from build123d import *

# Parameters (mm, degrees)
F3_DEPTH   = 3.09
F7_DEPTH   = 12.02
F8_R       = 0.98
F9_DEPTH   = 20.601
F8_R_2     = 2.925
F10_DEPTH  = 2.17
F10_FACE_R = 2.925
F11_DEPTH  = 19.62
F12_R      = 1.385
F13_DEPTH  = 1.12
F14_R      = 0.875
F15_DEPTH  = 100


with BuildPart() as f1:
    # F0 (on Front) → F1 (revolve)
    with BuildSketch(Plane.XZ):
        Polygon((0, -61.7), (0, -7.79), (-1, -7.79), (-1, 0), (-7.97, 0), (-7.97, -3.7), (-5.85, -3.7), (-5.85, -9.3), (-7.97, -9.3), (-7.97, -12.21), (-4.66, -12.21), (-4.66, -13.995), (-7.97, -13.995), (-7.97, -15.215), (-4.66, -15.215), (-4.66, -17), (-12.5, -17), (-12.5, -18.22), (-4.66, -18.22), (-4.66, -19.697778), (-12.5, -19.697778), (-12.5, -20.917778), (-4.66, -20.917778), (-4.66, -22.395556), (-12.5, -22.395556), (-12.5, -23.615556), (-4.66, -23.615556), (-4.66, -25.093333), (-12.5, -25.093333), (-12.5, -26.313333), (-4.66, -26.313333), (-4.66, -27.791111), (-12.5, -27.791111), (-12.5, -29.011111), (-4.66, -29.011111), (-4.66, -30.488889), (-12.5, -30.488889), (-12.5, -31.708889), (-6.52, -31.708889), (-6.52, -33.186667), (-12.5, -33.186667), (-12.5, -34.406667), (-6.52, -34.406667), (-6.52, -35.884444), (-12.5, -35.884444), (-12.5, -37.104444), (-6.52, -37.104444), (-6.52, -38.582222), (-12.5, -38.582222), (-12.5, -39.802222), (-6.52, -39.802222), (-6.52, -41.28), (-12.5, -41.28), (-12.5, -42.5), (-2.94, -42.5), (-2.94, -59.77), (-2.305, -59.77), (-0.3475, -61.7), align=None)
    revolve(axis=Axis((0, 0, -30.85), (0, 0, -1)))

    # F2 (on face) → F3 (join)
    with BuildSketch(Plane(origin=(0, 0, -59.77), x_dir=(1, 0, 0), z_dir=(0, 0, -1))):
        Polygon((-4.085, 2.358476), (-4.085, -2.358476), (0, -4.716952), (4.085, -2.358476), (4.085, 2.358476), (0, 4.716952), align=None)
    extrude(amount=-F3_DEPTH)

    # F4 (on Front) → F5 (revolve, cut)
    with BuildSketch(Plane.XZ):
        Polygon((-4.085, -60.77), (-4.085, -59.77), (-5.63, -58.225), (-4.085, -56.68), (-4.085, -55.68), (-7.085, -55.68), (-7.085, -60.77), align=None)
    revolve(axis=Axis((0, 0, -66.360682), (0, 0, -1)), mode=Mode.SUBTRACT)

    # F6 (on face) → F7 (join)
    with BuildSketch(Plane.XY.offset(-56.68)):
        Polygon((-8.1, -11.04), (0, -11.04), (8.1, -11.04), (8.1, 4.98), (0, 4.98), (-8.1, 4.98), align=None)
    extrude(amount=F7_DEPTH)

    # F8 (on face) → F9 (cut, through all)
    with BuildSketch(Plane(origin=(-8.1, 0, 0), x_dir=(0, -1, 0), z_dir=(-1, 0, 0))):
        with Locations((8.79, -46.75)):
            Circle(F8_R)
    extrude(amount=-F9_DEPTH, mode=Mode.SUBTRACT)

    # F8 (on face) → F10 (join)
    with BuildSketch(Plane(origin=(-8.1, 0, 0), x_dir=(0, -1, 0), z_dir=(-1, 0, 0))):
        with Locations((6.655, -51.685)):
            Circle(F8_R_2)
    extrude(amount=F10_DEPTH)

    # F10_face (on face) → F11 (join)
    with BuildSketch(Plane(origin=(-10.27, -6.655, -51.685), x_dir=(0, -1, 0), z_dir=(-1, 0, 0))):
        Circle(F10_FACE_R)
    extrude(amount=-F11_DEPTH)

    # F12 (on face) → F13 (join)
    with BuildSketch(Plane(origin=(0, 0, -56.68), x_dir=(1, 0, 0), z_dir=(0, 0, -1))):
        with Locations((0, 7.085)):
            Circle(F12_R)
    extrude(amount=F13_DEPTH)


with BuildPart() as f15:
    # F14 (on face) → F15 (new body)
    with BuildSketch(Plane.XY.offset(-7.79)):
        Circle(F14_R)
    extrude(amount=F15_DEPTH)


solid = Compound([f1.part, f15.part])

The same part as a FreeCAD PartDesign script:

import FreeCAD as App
import Part
import Sketcher

V = App.Vector
Q = App.Units.Quantity

doc = App.newDocument("Part")
body = doc.addObject("PartDesign::Body", "Body")

sketch1 = body.newObject("Sketcher::SketchObject", "Sketch")
sketch1.AttachmentSupport = (doc.getObject("XZ_Plane"), [""])
sketch1.MapMode = "FlatFace"
sketch1.addGeometry(Part.LineSegment(V(0, -61.7, 0), V(0, -7.79, 0)), False)
sketch1.addGeometry(Part.LineSegment(V(0, -7.79, 0), V(-1, -7.79, 0)), False)
sketch1.addGeometry(Part.LineSegment(V(-1, -7.79, 0), V(-1, 0, 0)), False)
sketch1.addGeometry(Part.LineSegment(V(-1, 0, 0), V(-7.97, 0, 0)), False)
sketch1.addGeometry(Part.LineSegment(V(-7.97, 0, 0), V(-7.97, -3.7, 0)), False)
sketch1.addGeometry(Part.LineSegment(V(-7.97, -3.7, 0), V(-5.85, -3.7, 0)), False)
sketch1.addGeometry(Part.LineSegment(V(-5.85, -3.7, 0), V(-5.85, -9.3, 0)), False)
sketch1.addGeometry(Part.LineSegment(V(-5.85, -9.3, 0), V(-7.97, -9.3, 0)), False)
sketch1.addGeometry(Part.LineSegment(V(-7.97, -9.3, 0), V(-7.97, -12.21, 0)), False)
sketch1.addGeometry(Part.LineSegment(V(-7.97, -12.21, 0), V(-4.66, -12.21, 0)), False)
sketch1.addGeometry(Part.LineSegment(V(-4.66, -12.21, 0), V(-4.66, -13.99, 0)), False)
sketch1.addGeometry(Part.LineSegment(V(-4.66, -13.99, 0), V(-7.97, -13.99, 0)), False)
sketch1.addGeometry(Part.LineSegment(V(-7.97, -13.99, 0), V(-7.97, -15.21, 0)), False)
sketch1.addGeometry(Part.LineSegment(V(-7.97, -15.21, 0), V(-4.66, -15.21, 0)), False)
sketch1.addGeometry(Part.LineSegment(V(-4.66, -15.21, 0), V(-4.66, -17, 0)), False)
sketch1.addGeometry(Part.LineSegment(V(-4.66, -17, 0), V(-12.5, -17, 0)), False)
sketch1.addGeometry(Part.LineSegment(V(-12.5, -17, 0), V(-12.5, -18.22, 0)), False)
sketch1.addGeometry(Part.LineSegment(V(-12.5, -18.22, 0), V(-4.66, -18.22, 0)), False)
sketch1.addGeometry(Part.LineSegment(V(-4.66, -18.22, 0), V(-4.66, -19.7, 0)), False)
sketch1.addGeometry(Part.LineSegment(V(-4.66, -19.7, 0), V(-12.5, -19.7, 0)), False)
sketch1.addGeometry(Part.LineSegment(V(-12.5, -19.7, 0), V(-12.5, -20.92, 0)), False)
sketch1.addGeometry(Part.LineSegment(V(-12.5, -20.92, 0), V(-4.66, -20.92, 0)), False)
sketch1.addGeometry(Part.LineSegment(V(-4.66, -20.92, 0), V(-4.66, -22.4, 0)), False)
sketch1.addGeometry(Part.LineSegment(V(-4.66, -22.4, 0), V(-12.5, -22.4, 0)), False)
sketch1.addGeometry(Part.LineSegment(V(-12.5, -22.4, 0), V(-12.5, -23.62, 0)), False)
sketch1.addGeometry(Part.LineSegment(V(-12.5, -23.62, 0), V(-4.66, -23.62, 0)), False)
sketch1.addGeometry(Part.LineSegment(V(-4.66, -23.62, 0), V(-4.66, -25.09, 0)), False)
sketch1.addGeometry(Part.LineSegment(V(-4.66, -25.09, 0), V(-12.5, -25.09, 0)), False)
sketch1.addGeometry(Part.LineSegment(V(-12.5, -25.09, 0), V(-12.5, -26.31, 0)), False)
sketch1.addGeometry(Part.LineSegment(V(-12.5, -26.31, 0), V(-4.66, -26.31, 0)), False)
sketch1.addGeometry(Part.LineSegment(V(-4.66, -26.31, 0), V(-4.66, -27.79, 0)), False)
sketch1.addGeometry(Part.LineSegment(V(-4.66, -27.79, 0), V(-12.5, -27.79, 0)), False)
sketch1.addGeometry(Part.LineSegment(V(-12.5, -27.79, 0), V(-12.5, -29.01, 0)), False)
sketch1.addGeometry(Part.LineSegment(V(-12.5, -29.01, 0), V(-4.66, -29.01, 0)), False)
sketch1.addGeometry(Part.LineSegment(V(-4.66, -29.01, 0), V(-4.66, -30.49, 0)), False)
sketch1.addGeometry(Part.LineSegment(V(-4.66, -30.49, 0), V(-12.5, -30.49, 0)), False)
sketch1.addGeometry(Part.LineSegment(V(-12.5, -30.49, 0), V(-12.5, -31.71, 0)), False)
sketch1.addGeometry(Part.LineSegment(V(-12.5, -31.71, 0), V(-6.52, -31.71, 0)), False)
sketch1.addGeometry(Part.LineSegment(V(-6.52, -31.71, 0), V(-6.52, -33.19, 0)), False)
sketch1.addGeometry(Part.LineSegment(V(-6.52, -33.19, 0), V(-12.5, -33.19, 0)), False)
sketch1.addGeometry(Part.LineSegment(V(-12.5, -33.19, 0), V(-12.5, -34.41, 0)), False)
sketch1.addGeometry(Part.LineSegment(V(-12.5, -34.41, 0), V(-6.52, -34.41, 0)), False)
sketch1.addGeometry(Part.LineSegment(V(-6.52, -34.41, 0), V(-6.52, -35.88, 0)), False)
sketch1.addGeometry(Part.LineSegment(V(-6.52, -35.88, 0), V(-12.5, -35.88, 0)), False)
sketch1.addGeometry(Part.LineSegment(V(-12.5, -35.88, 0), V(-12.5, -37.1, 0)), False)
sketch1.addGeometry(Part.LineSegment(V(-12.5, -37.1, 0), V(-6.52, -37.1, 0)), False)
sketch1.addGeometry(Part.LineSegment(V(-6.52, -37.1, 0), V(-6.52, -38.58, 0)), False)
sketch1.addGeometry(Part.LineSegment(V(-6.52, -38.58, 0), V(-12.5, -38.58, 0)), False)
sketch1.addGeometry(Part.LineSegment(V(-12.5, -38.58, 0), V(-12.5, -39.8, 0)), False)
sketch1.addGeometry(Part.LineSegment(V(-12.5, -39.8, 0), V(-6.52, -39.8, 0)), False)
sketch1.addGeometry(Part.LineSegment(V(-6.52, -39.8, 0), V(-6.52, -41.28, 0)), False)
sketch1.addGeometry(Part.LineSegment(V(-6.52, -41.28, 0), V(-12.5, -41.28, 0)), False)
sketch1.addGeometry(Part.LineSegment(V(-12.5, -41.28, 0), V(-12.5, -42.5, 0)), False)
sketch1.addGeometry(Part.LineSegment(V(-12.5, -42.5, 0), V(-2.94, -42.5, 0)), False)
sketch1.addGeometry(Part.LineSegment(V(-2.94, -42.5, 0), V(-2.94, -59.77, 0)), False)
sketch1.addGeometry(Part.LineSegment(V(-2.94, -59.77, 0), V(-2.31, -59.77, 0)), False)
sketch1.addGeometry(Part.LineSegment(V(-2.31, -59.77, 0), V(-0.35, -61.7, 0)), False)
sketch1.addGeometry(Part.LineSegment(V(-0.35, -61.7, 0), V(0, -61.7, 0)), False)
sketch1.addConstraint(Sketcher.Constraint("Coincident", 0, 2, 1, 1))
sketch1.addConstraint(Sketcher.Constraint("Coincident", 1, 2, 2, 1))
sketch1.addConstraint(Sketcher.Constraint("Coincident", 2, 2, 3, 1))
sketch1.addConstraint(Sketcher.Constraint("Coincident", 3, 2, 4, 1))
sketch1.addConstraint(Sketcher.Constraint("Coincident", 4, 2, 5, 1))
sketch1.addConstraint(Sketcher.Constraint("Coincident", 5, 2, 6, 1))
sketch1.addConstraint(Sketcher.Constraint("Coincident", 6, 2, 7, 1))
sketch1.addConstraint(Sketcher.Constraint("Coincident", 7, 2, 8, 1))
sketch1.addConstraint(Sketcher.Constraint("Coincident", 8, 2, 9, 1))
sketch1.addConstraint(Sketcher.Constraint("Coincident", 9, 2, 10, 1))
sketch1.addConstraint(Sketcher.Constraint("Coincident", 10, 2, 11, 1))
sketch1.addConstraint(Sketcher.Constraint("Coincident", 11, 2, 12, 1))
sketch1.addConstraint(Sketcher.Constraint("Coincident", 12, 2, 13, 1))
sketch1.addConstraint(Sketcher.Constraint("Coincident", 13, 2, 14, 1))
sketch1.addConstraint(Sketcher.Constraint("Coincident", 14, 2, 15, 1))
sketch1.addConstraint(Sketcher.Constraint("Coincident", 15, 2, 16, 1))
sketch1.addConstraint(Sketcher.Constraint("Coincident", 16, 2, 17, 1))
sketch1.addConstraint(Sketcher.Constraint("Coincident", 17, 2, 18, 1))
sketch1.addConstraint(Sketcher.Constraint("Coincident", 18, 2, 19, 1))
sketch1.addConstraint(Sketcher.Constraint("Coincident", 19, 2, 20, 1))
sketch1.addConstraint(Sketcher.Constraint("Coincident", 20, 2, 21, 1))
sketch1.addConstraint(Sketcher.Constraint("Coincident", 21, 2, 22, 1))
sketch1.addConstraint(Sketcher.Constraint("Coincident", 22, 2, 23, 1))
sketch1.addConstraint(Sketcher.Constraint("Coincident", 23, 2, 24, 1))
sketch1.addConstraint(Sketcher.Constraint("Coincident", 24, 2, 25, 1))
sketch1.addConstraint(Sketcher.Constraint("Coincident", 25, 2, 26, 1))
sketch1.addConstraint(Sketcher.Constraint("Coincident", 26, 2, 27, 1))
sketch1.addConstraint(Sketcher.Constraint("Coincident", 27, 2, 28, 1))
sketch1.addConstraint(Sketcher.Constraint("Coincident", 28, 2, 29, 1))
sketch1.addConstraint(Sketcher.Constraint("Coincident", 29, 2, 30, 1))
sketch1.addConstraint(Sketcher.Constraint("Coincident", 30, 2, 31, 1))
sketch1.addConstraint(Sketcher.Constraint("Coincident", 31, 2, 32, 1))
sketch1.addConstraint(Sketcher.Constraint("Coincident", 32, 2, 33, 1))
sketch1.addConstraint(Sketcher.Constraint("Coincident", 33, 2, 34, 1))
sketch1.addConstraint(Sketcher.Constraint("Coincident", 34, 2, 35, 1))
sketch1.addConstraint(Sketcher.Constraint("Coincident", 35, 2, 36, 1))
sketch1.addConstraint(Sketcher.Constraint("Coincident", 36, 2, 37, 1))
sketch1.addConstraint(Sketcher.Constraint("Coincident", 37, 2, 38, 1))
sketch1.addConstraint(Sketcher.Constraint("Coincident", 38, 2, 39, 1))
sketch1.addConstraint(Sketcher.Constraint("Coincident", 39, 2, 40, 1))
sketch1.addConstraint(Sketcher.Constraint("Coincident", 40, 2, 41, 1))
sketch1.addConstraint(Sketcher.Constraint("Coincident", 41, 2, 42, 1))
sketch1.addConstraint(Sketcher.Constraint("Coincident", 42, 2, 43, 1))
sketch1.addConstraint(Sketcher.Constraint("Coincident", 43, 2, 44, 1))
sketch1.addConstraint(Sketcher.Constraint("Coincident", 44, 2, 45, 1))
sketch1.addConstraint(Sketcher.Constraint("Coincident", 45, 2, 46, 1))
sketch1.addConstraint(Sketcher.Constraint("Coincident", 46, 2, 47, 1))
sketch1.addConstraint(Sketcher.Constraint("Coincident", 47, 2, 48, 1))
sketch1.addConstraint(Sketcher.Constraint("Coincident", 48, 2, 49, 1))
sketch1.addConstraint(Sketcher.Constraint("Coincident", 49, 2, 50, 1))
sketch1.addConstraint(Sketcher.Constraint("Coincident", 50, 2, 51, 1))
sketch1.addConstraint(Sketcher.Constraint("Coincident", 51, 2, 52, 1))
sketch1.addConstraint(Sketcher.Constraint("Coincident", 52, 2, 53, 1))
sketch1.addConstraint(Sketcher.Constraint("Coincident", 53, 2, 54, 1))
sketch1.addConstraint(Sketcher.Constraint("Coincident", 54, 2, 55, 1))
sketch1.addConstraint(Sketcher.Constraint("Coincident", 55, 2, 56, 1))
sketch1.addConstraint(Sketcher.Constraint("Coincident", 56, 2, 57, 1))
sketch1.addConstraint(Sketcher.Constraint("Coincident", 57, 2, 0, 1))
sketch1.addConstraint(Sketcher.Constraint("Vertical", 0))
sketch1.addConstraint(Sketcher.Constraint("Horizontal", 1))
sketch1.addConstraint(Sketcher.Constraint("Vertical", 2))
sketch1.addConstraint(Sketcher.Constraint("Horizontal", 3))
sketch1.addConstraint(Sketcher.Constraint("Vertical", 4))
sketch1.addConstraint(Sketcher.Constraint("Horizontal", 5))
sketch1.addConstraint(Sketcher.Constraint("Vertical", 6))
sketch1.addConstraint(Sketcher.Constraint("Horizontal", 7))
sketch1.addConstraint(Sketcher.Constraint("Vertical", 8))
sketch1.addConstraint(Sketcher.Constraint("Horizontal", 9))
sketch1.addConstraint(Sketcher.Constraint("Vertical", 10))
sketch1.addConstraint(Sketcher.Constraint("Horizontal", 11))
sketch1.addConstraint(Sketcher.Constraint("Vertical", 12))
sketch1.addConstraint(Sketcher.Constraint("Horizontal", 13))
sketch1.addConstraint(Sketcher.Constraint("Vertical", 14))
sketch1.addConstraint(Sketcher.Constraint("Horizontal", 15))
sketch1.addConstraint(Sketcher.Constraint("Vertical", 16))
sketch1.addConstraint(Sketcher.Constraint("Horizontal", 17))
sketch1.addConstraint(Sketcher.Constraint("Vertical", 18))
sketch1.addConstraint(Sketcher.Constraint("Horizontal", 19))
sketch1.addConstraint(Sketcher.Constraint("Vertical", 20))
sketch1.addConstraint(Sketcher.Constraint("Horizontal", 21))
sketch1.addConstraint(Sketcher.Constraint("Vertical", 22))
sketch1.addConstraint(Sketcher.Constraint("Horizontal", 23))
sketch1.addConstraint(Sketcher.Constraint("Vertical", 24))
sketch1.addConstraint(Sketcher.Constraint("Horizontal", 25))
sketch1.addConstraint(Sketcher.Constraint("Vertical", 26))
sketch1.addConstraint(Sketcher.Constraint("Horizontal", 27))
sketch1.addConstraint(Sketcher.Constraint("Vertical", 28))
sketch1.addConstraint(Sketcher.Constraint("Horizontal", 29))
sketch1.addConstraint(Sketcher.Constraint("Vertical", 30))
sketch1.addConstraint(Sketcher.Constraint("Horizontal", 31))
sketch1.addConstraint(Sketcher.Constraint("Vertical", 32))
sketch1.addConstraint(Sketcher.Constraint("Horizontal", 33))
sketch1.addConstraint(Sketcher.Constraint("Vertical", 34))
sketch1.addConstraint(Sketcher.Constraint("Horizontal", 35))
sketch1.addConstraint(Sketcher.Constraint("Vertical", 36))
sketch1.addConstraint(Sketcher.Constraint("Horizontal", 37))
sketch1.addConstraint(Sketcher.Constraint("Vertical", 38))
sketch1.addConstraint(Sketcher.Constraint("Horizontal", 39))
sketch1.addConstraint(Sketcher.Constraint("Vertical", 40))
sketch1.addConstraint(Sketcher.Constraint("Horizontal", 41))
sketch1.addConstraint(Sketcher.Constraint("Vertical", 42))
sketch1.addConstraint(Sketcher.Constraint("Horizontal", 43))
sketch1.addConstraint(Sketcher.Constraint("Vertical", 44))
sketch1.addConstraint(Sketcher.Constraint("Horizontal", 45))
sketch1.addConstraint(Sketcher.Constraint("Vertical", 46))
sketch1.addConstraint(Sketcher.Constraint("Horizontal", 47))
sketch1.addConstraint(Sketcher.Constraint("Vertical", 48))
sketch1.addConstraint(Sketcher.Constraint("Horizontal", 49))
sketch1.addConstraint(Sketcher.Constraint("Vertical", 50))
sketch1.addConstraint(Sketcher.Constraint("Horizontal", 51))
sketch1.addConstraint(Sketcher.Constraint("Vertical", 52))
sketch1.addConstraint(Sketcher.Constraint("Horizontal", 53))
sketch1.addConstraint(Sketcher.Constraint("Vertical", 54))
sketch1.addConstraint(Sketcher.Constraint("Horizontal", 55))
sketch1.addConstraint(Sketcher.Constraint("Horizontal", 57))
sketch1.addConstraint(Sketcher.Constraint("PointOnObject", 0, 2, -2))
sketch1.addConstraint(Sketcher.Constraint("PointOnObject", 2, 2, -1))
sketch1.addConstraint(Sketcher.Constraint("Vertical", 4, 2, 7, 2))
sketch1.addConstraint(Sketcher.Constraint("Vertical", 8, 2, 11, 2))
sketch1.addConstraint(Sketcher.Constraint("Vertical", 10, 2, 13, 2))
sketch1.addConstraint(Sketcher.Constraint("Vertical", 14, 2, 17, 2))
sketch1.addConstraint(Sketcher.Constraint("Vertical", 16, 2, 19, 2))
sketch1.addConstraint(Sketcher.Constraint("Vertical", 18, 2, 21, 2))
sketch1.addConstraint(Sketcher.Constraint("Vertical", 20, 2, 23, 2))
sketch1.addConstraint(Sketcher.Constraint("Vertical", 22, 2, 25, 2))
sketch1.addConstraint(Sketcher.Constraint("Vertical", 24, 2, 27, 2))
sketch1.addConstraint(Sketcher.Constraint("Vertical", 26, 2, 29, 2))
sketch1.addConstraint(Sketcher.Constraint("Vertical", 28, 2, 31, 2))
sketch1.addConstraint(Sketcher.Constraint("Vertical", 30, 2, 33, 2))
sketch1.addConstraint(Sketcher.Constraint("Vertical", 32, 2, 35, 2))
sketch1.addConstraint(Sketcher.Constraint("Vertical", 36, 2, 39, 2))
sketch1.addConstraint(Sketcher.Constraint("Vertical", 38, 2, 41, 2))
sketch1.addConstraint(Sketcher.Constraint("Vertical", 40, 2, 43, 2))
sketch1.addConstraint(Sketcher.Constraint("Vertical", 42, 2, 45, 2))
sketch1.addConstraint(Sketcher.Constraint("Vertical", 44, 2, 47, 2))
sketch1.addConstraint(Sketcher.Constraint("Vertical", 46, 2, 49, 2))
sketch1.addConstraint(Sketcher.Constraint("Vertical", 48, 2, 51, 2))
sketch1.addConstraint(Sketcher.Constraint("Equal", 10, 14))
sketch1.addConstraint(Sketcher.Constraint("Equal", 12, 16))
sketch1.addConstraint(Sketcher.Constraint("Equal", 16, 20))
sketch1.addConstraint(Sketcher.Constraint("Equal", 18, 22))
sketch1.addConstraint(Sketcher.Constraint("Equal", 20, 24))
sketch1.addConstraint(Sketcher.Constraint("Equal", 22, 26))
sketch1.addConstraint(Sketcher.Constraint("Equal", 24, 28))
sketch1.addConstraint(Sketcher.Constraint("Equal", 26, 30))
sketch1.addConstraint(Sketcher.Constraint("Equal", 28, 32))
sketch1.addConstraint(Sketcher.Constraint("Equal", 30, 34))
sketch1.addConstraint(Sketcher.Constraint("Equal", 32, 36))
sketch1.addConstraint(Sketcher.Constraint("Equal", 34, 38))
sketch1.addConstraint(Sketcher.Constraint("Equal", 36, 40))
sketch1.addConstraint(Sketcher.Constraint("Equal", 38, 42))
sketch1.addConstraint(Sketcher.Constraint("Equal", 40, 44))
sketch1.addConstraint(Sketcher.Constraint("Equal", 42, 46))
sketch1.addConstraint(Sketcher.Constraint("Equal", 44, 48))
sketch1.addConstraint(Sketcher.Constraint("Equal", 46, 50))
sketch1.addConstraint(Sketcher.Constraint("Equal", 48, 52))
sketch1.addConstraint(Sketcher.Constraint("DistanceX", 1, 2, 1, 1, Q("1 mm")))
sketch1.addConstraint(Sketcher.Constraint("DistanceY", 4, 2, 4, 1, Q("3.7 mm")))
sketch1.addConstraint(Sketcher.Constraint("DistanceY", 6, 2, 6, 1, Q("5.6 mm")))
sketch1.addConstraint(Sketcher.Constraint("DistanceY", 14, 2, -1, 1, Q("17 mm")))
sketch1.addConstraint(Sketcher.Constraint("DistanceX", 3, 2, 3, 1, Q("6.97 mm")))
sketch1.addConstraint(Sketcher.Constraint("DistanceX", 5, 1, 5, 2, Q("2.12 mm")))
sketch1.addConstraint(Sketcher.Constraint("DistanceX", 9, 1, 9, 2, Q("3.31 mm")))
sketch1.addConstraint(Sketcher.Constraint("DistanceX", 15, 2, 15, 1, Q("7.84 mm")))
sketch1.addConstraint(Sketcher.Constraint("DistanceX", 37, 1, 37, 2, Q("5.98 mm")))
sketch1.addConstraint(Sketcher.Constraint("DistanceX", 53, 1, 53, 2, Q("9.56 mm")))
sketch1.addConstraint(Sketcher.Constraint("DistanceY", 0, 1, 0, 2, Q("53.91 mm")))
sketch1.addConstraint(Sketcher.Constraint("DistanceY", 2, 1, 2, 2, Q("7.79 mm")))
sketch1.addConstraint(Sketcher.Constraint("DistanceY", 8, 2, 8, 1, Q("2.91 mm")))
sketch1.addConstraint(Sketcher.Constraint("DistanceY", 12, 2, 12, 1, Q("1.22 mm")))
sketch1.addConstraint(Sketcher.Constraint("DistanceY", 54, 2, 54, 1, Q("17.27 mm")))
sketch1.addConstraint(Sketcher.Constraint("DistanceY", 52, 2, -1, 1, Q("42.5 mm")))
sketch1.addConstraint(Sketcher.Constraint("DistanceX", 55, 1, 55, 2, Q("0.635 mm")))
sketch1.addConstraint(Sketcher.Constraint("DistanceX", 57, 1, 57, 2, Q("0.3475 mm")))
revolution = body.newObject("PartDesign::Revolution", "Revolution")
revolution.Profile = sketch1
revolution.ReferenceAxis = (sketch1, ["V_Axis"])
revolution.Angle = 360

sketch2 = body.newObject("Sketcher::SketchObject", "Sketch001")
sketch2.AttachmentSupport = (doc.getObject("XY_Plane"), [""])
sketch2.MapMode = "FlatFace"
sketch2.AttachmentOffset = App.Placement(V(0, 0, -59.77), App.Rotation())
sketch2.addGeometry(Part.LineSegment(V(-4.1, -2.4, 0), V(-4.1, 2.4, 0)), False)
sketch2.addGeometry(Part.LineSegment(V(-4.1, 2.4, 0), V(0, 4.7, 0)), False)
sketch2.addGeometry(Part.LineSegment(V(0, 4.7, 0), V(4.1, 2.4, 0)), False)
sketch2.addGeometry(Part.LineSegment(V(4.1, 2.4, 0), V(4.1, -2.4, 0)), False)
sketch2.addGeometry(Part.LineSegment(V(4.1, -2.4, 0), V(0, -4.7, 0)), False)
sketch2.addGeometry(Part.LineSegment(V(0, -4.7, 0), V(-4.1, -2.4, 0)), False)
sketch2.addConstraint(Sketcher.Constraint("Coincident", 0, 2, 1, 1))
sketch2.addConstraint(Sketcher.Constraint("Coincident", 1, 2, 2, 1))
sketch2.addConstraint(Sketcher.Constraint("Coincident", 2, 2, 3, 1))
sketch2.addConstraint(Sketcher.Constraint("Coincident", 3, 2, 4, 1))
sketch2.addConstraint(Sketcher.Constraint("Coincident", 4, 2, 5, 1))
sketch2.addConstraint(Sketcher.Constraint("Coincident", 5, 2, 0, 1))
sketch2.addConstraint(Sketcher.Constraint("Vertical", 0))
sketch2.addConstraint(Sketcher.Constraint("Vertical", 3))
sketch2.addConstraint(Sketcher.Constraint("Symmetric", 0, 2, 3, 2, -1, 1))
sketch2.addConstraint(Sketcher.Constraint("Symmetric", 1, 2, 4, 2, -1, 1))
sketch2.addConstraint(Sketcher.Constraint("PointOnObject", 1, 2, -2))
sketch2.addConstraint(Sketcher.Constraint("Parallel", 2, 5))
sketch2.addConstraint(Sketcher.Constraint("Horizontal", 0, 2, 2, 2))
sketch2.addConstraint(Sketcher.Constraint("Angle", 1, Q("30.000002 deg")))
sketch2.addConstraint(Sketcher.Constraint("DistanceX", 0, 2, 2, 2, Q("8.17 mm")))
sketch2.addConstraint(Sketcher.Constraint("DistanceY", 0, 1, 0, 2, Q("4.716952 mm")))
pad1 = body.newObject("PartDesign::Pad", "Pad")
pad1.Profile = sketch2
pad1.Length = 3.09

sketch3 = body.newObject("Sketcher::SketchObject", "Sketch002")
sketch3.AttachmentSupport = (doc.getObject("XZ_Plane"), [""])
sketch3.MapMode = "FlatFace"
sketch3.addGeometry(Part.LineSegment(V(-4.1, -60.8, 0), V(-4.1, -59.8, 0)), False)
sketch3.addGeometry(Part.LineSegment(V(-4.1, -59.8, 0), V(-5.6, -58.2, 0)), False)
sketch3.addGeometry(Part.LineSegment(V(-5.6, -58.2, 0), V(-4.1, -56.7, 0)), False)
sketch3.addGeometry(Part.LineSegment(V(-4.1, -56.7, 0), V(-4.1, -55.7, 0)), False)
sketch3.addGeometry(Part.LineSegment(V(-4.1, -55.7, 0), V(-7.1, -55.7, 0)), False)
sketch3.addGeometry(Part.LineSegment(V(-7.1, -55.7, 0), V(-7.1, -60.8, 0)), False)
sketch3.addGeometry(Part.LineSegment(V(-7.1, -60.8, 0), V(-4.1, -60.8, 0)), False)
sketch3.addConstraint(Sketcher.Constraint("Coincident", 0, 2, 1, 1))
sketch3.addConstraint(Sketcher.Constraint("Coincident", 1, 2, 2, 1))
sketch3.addConstraint(Sketcher.Constraint("Coincident", 2, 2, 3, 1))
sketch3.addConstraint(Sketcher.Constraint("Coincident", 3, 2, 4, 1))
sketch3.addConstraint(Sketcher.Constraint("Coincident", 4, 2, 5, 1))
sketch3.addConstraint(Sketcher.Constraint("Coincident", 5, 2, 6, 1))
sketch3.addConstraint(Sketcher.Constraint("Coincident", 6, 2, 0, 1))
sketch3.addConstraint(Sketcher.Constraint("Vertical", 0))
sketch3.addConstraint(Sketcher.Constraint("Vertical", 3))
sketch3.addConstraint(Sketcher.Constraint("Horizontal", 4))
sketch3.addConstraint(Sketcher.Constraint("Vertical", 5))
sketch3.addConstraint(Sketcher.Constraint("Horizontal", 6))
sketch3.addConstraint(Sketcher.Constraint("Perpendicular", 1, 2))
sketch3.addConstraint(Sketcher.Constraint("Vertical", 0, 2, 2, 2))
sketch3.addConstraint(Sketcher.Constraint("Equal", 0, 3))
sketch3.addConstraint(Sketcher.Constraint("Equal", 1, 2))
sketch3.addConstraint(Sketcher.Constraint("DistanceX", 4, 2, 4, 1, Q("3 mm")))
sketch3.addConstraint(Sketcher.Constraint("DistanceY", 0, 1, 0, 2, Q("1 mm")))
sketch3.addConstraint(Sketcher.Constraint("DistanceY", 5, 2, 5, 1, Q("5.09 mm")))
sketch3.addConstraint(Sketcher.Constraint("DistanceY", 0, 2, -1, 1, Q("59.77 mm")))
sketch3.addConstraint(Sketcher.Constraint("DistanceX", 1, 2, -1, 1, Q("5.63 mm")))
groove = body.newObject("PartDesign::Groove", "Groove")
groove.Profile = sketch3
groove.ReferenceAxis = (sketch3, ["V_Axis"])
groove.Angle = 360

sketch4 = body.newObject("Sketcher::SketchObject", "Sketch003")
sketch4.AttachmentSupport = (doc.getObject("XY_Plane"), [""])
sketch4.MapMode = "FlatFace"
sketch4.AttachmentOffset = App.Placement(V(0, 0, -56.68), App.Rotation())
sketch4.addGeometry(Part.LineSegment(V(-8, -11, 0), V(8, -11, 0)), False)
sketch4.addGeometry(Part.LineSegment(V(8, -11, 0), V(8, 5, 0)), False)
sketch4.addGeometry(Part.LineSegment(V(8, 5, 0), V(-8, 5, 0)), False)
sketch4.addGeometry(Part.LineSegment(V(-8, 5, 0), V(-8, -11, 0)), False)
sketch4.addConstraint(Sketcher.Constraint("Coincident", 0, 2, 1, 1))
sketch4.addConstraint(Sketcher.Constraint("Coincident", 1, 2, 2, 1))
sketch4.addConstraint(Sketcher.Constraint("Coincident", 2, 2, 3, 1))
sketch4.addConstraint(Sketcher.Constraint("Coincident", 3, 2, 0, 1))
sketch4.addConstraint(Sketcher.Constraint("Horizontal", 0))
sketch4.addConstraint(Sketcher.Constraint("Vertical", 1))
sketch4.addConstraint(Sketcher.Constraint("Horizontal", 2))
sketch4.addConstraint(Sketcher.Constraint("Vertical", 3))
sketch4.addConstraint(Sketcher.Constraint("DistanceX", 0, 1, 0, 2, Q("16.2 mm")))
sketch4.addConstraint(Sketcher.Constraint("DistanceY", 1, 1, 1, 2, Q("16.02 mm")))
sketch4.addConstraint(Sketcher.Constraint("DistanceX", -1, 1, 0, 2, Q("8.1 mm")))
sketch4.addConstraint(Sketcher.Constraint("DistanceY", 0, 2, -1, 1, Q("11.04 mm")))
pad2 = body.newObject("PartDesign::Pad", "Pad001")
pad2.Profile = sketch4
pad2.Length = 12.02

sketch5 = body.newObject("Sketcher::SketchObject", "Sketch004")
sketch5.AttachmentSupport = (doc.getObject("YZ_Plane"), [""])
sketch5.MapMode = "FlatFace"
sketch5.AttachmentOffset = App.Placement(V(0, 0, -8.1), App.Rotation())
sketch5.addGeometry(Part.Circle(V(-8.8, -46.8, 0), V(0, 0, 1), 1), False)
sketch5.addConstraint(Sketcher.Constraint("Diameter", 0, Q("1.96 mm")))
sketch5.addConstraint(Sketcher.Constraint("DistanceX", 0, 3, -1, 1, Q("8.79 mm")))
sketch5.addConstraint(Sketcher.Constraint("DistanceY", 0, 3, -1, 1, Q("46.75 mm")))
pocket1 = body.newObject("PartDesign::Pocket", "Pocket")
pocket1.Profile = sketch5
pocket1.Type = "ThroughAll"
pocket1.Reversed = True

sketch6 = body.newObject("Sketcher::SketchObject", "Sketch005")
sketch6.AttachmentSupport = (doc.getObject("YZ_Plane"), [""])
sketch6.MapMode = "FlatFace"
sketch6.AttachmentOffset = App.Placement(V(0, 0, -8.1), App.Rotation())
sketch6.addGeometry(Part.Circle(V(-6.7, -51.7, 0), V(0, 0, 1), 2.9), False)
sketch6.addConstraint(Sketcher.Constraint("Diameter", 0, Q("5.85 mm")))
sketch6.addConstraint(Sketcher.Constraint("DistanceX", 0, 3, -1, 1, Q("6.655 mm")))
sketch6.addConstraint(Sketcher.Constraint("DistanceY", 0, 3, -1, 1, Q("51.685 mm")))
pad3 = body.newObject("PartDesign::Pad", "Pad002")
pad3.Profile = sketch6
pad3.Length = 2.17
pad3.Reversed = True

sketch7 = body.newObject("Sketcher::SketchObject", "Sketch006")
sketch7.AttachmentSupport = (doc.getObject("YZ_Plane"), [""])
sketch7.MapMode = "FlatFace"
sketch7.AttachmentOffset = App.Placement(V(0, 0, -10.27), App.Rotation())
sketch7.addGeometry(Part.Circle(V(-6.7, -51.7, 0), V(0, 0, 1), 2.9), False)
sketch7.addConstraint(Sketcher.Constraint("Diameter", 0, Q("5.85 mm")))
sketch7.addConstraint(Sketcher.Constraint("DistanceX", 0, 3, -1, 1, Q("6.655 mm")))
sketch7.addConstraint(Sketcher.Constraint("DistanceY", 0, 3, -1, 1, Q("51.685 mm")))
pad4 = body.newObject("PartDesign::Pad", "Pad003")
pad4.Profile = sketch7
pad4.Length = 19.62

sketch8 = body.newObject("Sketcher::SketchObject", "Sketch007")
sketch8.AttachmentSupport = (doc.getObject("XY_Plane"), [""])
sketch8.MapMode = "FlatFace"
sketch8.AttachmentOffset = App.Placement(V(0, 0, -56.68), App.Rotation())
sketch8.addGeometry(Part.Circle(V(0, -7.1, 0), V(0, 0, 1), 1.4), False)
sketch8.addConstraint(Sketcher.Constraint("PointOnObject", 0, 3, -2))
sketch8.addConstraint(Sketcher.Constraint("Diameter", 0, Q("2.77 mm")))
sketch8.addConstraint(Sketcher.Constraint("DistanceY", 0, 3, -1, 1, Q("7.085 mm")))
pad5 = body.newObject("PartDesign::Pad", "Pad004")
pad5.Profile = sketch8
pad5.Length = 1.12
pad5.Reversed = True
body2 = doc.addObject("PartDesign::Body", "Body001")

sketch9 = body2.newObject("Sketcher::SketchObject", "Sketch008")
sketch9.AttachmentSupport = (doc.getObject("XY_Plane001"), [""])
sketch9.MapMode = "FlatFace"
sketch9.AttachmentOffset = App.Placement(V(0, 0, -7.79), App.Rotation())
sketch9.addGeometry(Part.Circle(V(0, 0, 0), V(0, 0, 1), 0.9), False)
sketch9.addConstraint(Sketcher.Constraint("Coincident", 0, 3, -1, 1))
sketch9.addConstraint(Sketcher.Constraint("Diameter", 0, Q("1.75 mm")))
pad6 = body2.newObject("PartDesign::Pad", "Pad005")
pad6.Profile = sketch9
pad6.Length = 100

doc.recompute()
